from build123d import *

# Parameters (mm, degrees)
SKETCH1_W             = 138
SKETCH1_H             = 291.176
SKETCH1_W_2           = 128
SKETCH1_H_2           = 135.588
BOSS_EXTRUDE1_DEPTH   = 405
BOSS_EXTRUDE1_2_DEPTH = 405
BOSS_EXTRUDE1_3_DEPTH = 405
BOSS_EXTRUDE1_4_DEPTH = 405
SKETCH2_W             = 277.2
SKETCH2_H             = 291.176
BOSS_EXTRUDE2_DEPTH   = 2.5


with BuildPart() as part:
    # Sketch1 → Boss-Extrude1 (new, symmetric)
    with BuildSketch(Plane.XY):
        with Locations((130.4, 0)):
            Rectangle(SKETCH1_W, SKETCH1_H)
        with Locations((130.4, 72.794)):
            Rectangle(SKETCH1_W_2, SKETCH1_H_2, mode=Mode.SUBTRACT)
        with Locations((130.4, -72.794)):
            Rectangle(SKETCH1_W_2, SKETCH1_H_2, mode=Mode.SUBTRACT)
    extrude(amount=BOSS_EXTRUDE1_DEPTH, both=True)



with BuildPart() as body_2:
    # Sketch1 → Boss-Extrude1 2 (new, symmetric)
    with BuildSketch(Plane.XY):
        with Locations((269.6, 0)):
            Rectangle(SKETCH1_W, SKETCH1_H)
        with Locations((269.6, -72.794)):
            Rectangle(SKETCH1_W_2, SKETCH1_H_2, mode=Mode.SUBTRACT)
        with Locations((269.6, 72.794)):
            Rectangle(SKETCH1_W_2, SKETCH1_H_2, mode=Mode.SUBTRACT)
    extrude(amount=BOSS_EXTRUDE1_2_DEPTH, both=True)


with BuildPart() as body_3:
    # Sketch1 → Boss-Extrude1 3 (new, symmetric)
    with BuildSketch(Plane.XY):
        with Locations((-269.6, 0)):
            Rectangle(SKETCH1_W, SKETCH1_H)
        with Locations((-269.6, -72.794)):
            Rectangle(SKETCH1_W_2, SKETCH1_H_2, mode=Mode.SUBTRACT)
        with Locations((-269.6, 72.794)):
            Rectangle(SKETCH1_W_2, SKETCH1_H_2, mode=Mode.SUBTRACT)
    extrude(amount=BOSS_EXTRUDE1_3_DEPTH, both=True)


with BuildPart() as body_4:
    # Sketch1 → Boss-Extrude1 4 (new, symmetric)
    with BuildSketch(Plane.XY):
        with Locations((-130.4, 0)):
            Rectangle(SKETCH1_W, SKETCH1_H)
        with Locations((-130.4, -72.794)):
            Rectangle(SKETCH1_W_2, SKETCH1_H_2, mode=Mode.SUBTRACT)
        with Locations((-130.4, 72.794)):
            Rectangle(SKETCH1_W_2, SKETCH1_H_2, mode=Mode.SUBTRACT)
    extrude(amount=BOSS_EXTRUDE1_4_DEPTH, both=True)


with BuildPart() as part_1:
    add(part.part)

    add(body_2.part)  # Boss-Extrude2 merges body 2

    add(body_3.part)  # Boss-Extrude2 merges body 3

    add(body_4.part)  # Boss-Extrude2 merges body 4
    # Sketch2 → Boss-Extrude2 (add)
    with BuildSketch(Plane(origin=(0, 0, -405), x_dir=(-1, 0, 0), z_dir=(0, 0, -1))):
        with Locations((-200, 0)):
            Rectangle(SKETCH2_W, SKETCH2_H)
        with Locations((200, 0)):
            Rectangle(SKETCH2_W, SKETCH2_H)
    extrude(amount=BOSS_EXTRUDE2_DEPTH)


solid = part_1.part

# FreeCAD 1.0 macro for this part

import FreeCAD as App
import Part
import Sketcher

V = App.Vector
Q = App.Units.Quantity

doc = App.newDocument("Part")
body = doc.addObject("PartDesign::Body", "Body")

sketch1 = body.newObject("Sketcher::SketchObject", "Sketch")
sketch1.AttachmentSupport = (doc.getObject("XY_Plane"), [""])
sketch1.MapMode = "FlatFace"
sketch1.addGeometry(Part.LineSegment(V(61, 146, 0), V(61, -146, 0)), False)
sketch1.addGeometry(Part.LineSegment(V(61, -146, 0), V(199, -146, 0)), False)
sketch1.addGeometry(Part.LineSegment(V(199, -146, 0), V(199, 146, 0)), False)
sketch1.addGeometry(Part.LineSegment(V(199, 146, 0), V(61, 146, 0)), False)
sketch1.addGeometry(Part.LineSegment(V(194, -141, 0), V(66, -141, 0)), False)
sketch1.addGeometry(Part.LineSegment(V(66, -141, 0), V(66, -5, 0)), False)
sketch1.addGeometry(Part.LineSegment(V(66, -5, 0), V(194, -5, 0)), False)
sketch1.addGeometry(Part.LineSegment(V(194, -5, 0), V(194, -141, 0)), False)
sketch1.addGeometry(Part.LineSegment(V(194, 5, 0), V(66, 5, 0)), False)
sketch1.addGeometry(Part.LineSegment(V(66, 5, 0), V(66, 141, 0)), False)
sketch1.addGeometry(Part.LineSegment(V(66, 141, 0), V(194, 141, 0)), False)
sketch1.addGeometry(Part.LineSegment(V(194, 141, 0), V(194, 5, 0)), False)
sketch1.addConstraint(Sketcher.Constraint("Coincident", 0, 2, 1, 1))
sketch1.addConstraint(Sketcher.Constraint("Coincident", 1, 2, 2, 1))
sketch1.addConstraint(Sketcher.Constraint("Coincident", 2, 2, 3, 1))
sketch1.addConstraint(Sketcher.Constraint("Coincident", 3, 2, 0, 1))
sketch1.addConstraint(Sketcher.Constraint("Coincident", 4, 2, 5, 1))
sketch1.addConstraint(Sketcher.Constraint("Coincident", 5, 2, 6, 1))
sketch1.addConstraint(Sketcher.Constraint("Coincident", 6, 2, 7, 1))
sketch1.addConstraint(Sketcher.Constraint("Coincident", 7, 2, 4, 1))
sketch1.addConstraint(Sketcher.Constraint("Coincident", 8, 2, 9, 1))
sketch1.addConstraint(Sketcher.Constraint("Coincident", 9, 2, 10, 1))
sketch1.addConstraint(Sketcher.Constraint("Coincident", 10, 2, 11, 1))
sketch1.addConstraint(Sketcher.Constraint("Coincident", 11, 2, 8, 1))
sketch1.addConstraint(Sketcher.Constraint("Vertical", 0))
sketch1.addConstraint(Sketcher.Constraint("Horizontal", 1))
sketch1.addConstraint(Sketcher.Constraint("Vertical", 2))
sketch1.addConstraint(Sketcher.Constraint("Horizontal", 3))
sketch1.addConstraint(Sketcher.Constraint("Horizontal", 4))
sketch1.addConstraint(Sketcher.Constraint("Vertical", 5))
sketch1.addConstraint(Sketcher.Constraint("Horizontal", 6))
sketch1.addConstraint(Sketcher.Constraint("Vertical", 7))
sketch1.addConstraint(Sketcher.Constraint("Horizontal", 8))
sketch1.addConstraint(Sketcher.Constraint("Vertical", 9))
sketch1.addConstraint(Sketcher.Constraint("Horizontal", 10))
sketch1.addConstraint(Sketcher.Constraint("Vertical", 11))
sketch1.addConstraint(Sketcher.Constraint("Symmetric", 5, 2, 8, 2, -1))
sketch1.addConstraint(Sketcher.Constraint("Symmetric", 7, 2, 10, 2, -1))
sketch1.addConstraint(Sketcher.Constraint("DistanceX", 1, 1, 1, 2, Q("138 mm")))
sketch1.addConstraint(Sketcher.Constraint("DistanceX", 4, 2, 4, 1, Q("128 mm")))
sketch1.addConstraint(Sketcher.Constraint("DistanceY", 5, 2, -1, 1, Q("5 mm")))
sketch1.addConstraint(Sketcher.Constraint("DistanceX", 0, 2, 4, 2, Q("5 mm")))
sketch1.addConstraint(Sketcher.Constraint("DistanceY", 0, 2, 4, 2, Q("5 mm")))
sketch1.addConstraint(Sketcher.Constraint("DistanceY", 9, 2, 3, 2, Q("5 mm")))
sketch1.addConstraint(Sketcher.Constraint("DistanceX", -1, 1, 0, 2, Q("61.4 mm")))
sketch1.addConstraint(Sketcher.Constraint("DistanceY", 0, 2, 0, 1, Q("291.176 mm")))
pad1 = body.newObject("PartDesign::Pad", "Pad")
pad1.Profile = sketch1
pad1.Length = 810
pad1.Midplane = True
body2 = doc.addObject("PartDesign::Body", "Body001")

sketch2 = body2.newObject("Sketcher::SketchObject", "Sketch001")
sketch2.AttachmentSupport = (doc.getObject("XY_Plane001"), [""])
sketch2.MapMode = "FlatFace"
sketch2.addGeometry(Part.LineSegment(V(201, 146, 0), V(201, -146, 0)), False)
sketch2.addGeometry(Part.LineSegment(V(201, -146, 0), V(339, -146, 0)), False)
sketch2.addGeometry(Part.LineSegment(V(339, -146, 0), V(339, 146, 0)), False)
sketch2.addGeometry(Part.LineSegment(V(339, 146, 0), V(201, 146, 0)), False)
sketch2.addGeometry(Part.LineSegment(V(334, -141, 0), V(206, -141, 0)), False)
sketch2.addGeometry(Part.LineSegment(V(206, -141, 0), V(206, -5, 0)), False)
sketch2.addGeometry(Part.LineSegment(V(206, -5, 0), V(334, -5, 0)), False)
sketch2.addGeometry(Part.LineSegment(V(334, -5, 0), V(334, -141, 0)), False)
sketch2.addGeometry(Part.LineSegment(V(334, 5, 0), V(206, 5, 0)), False)
sketch2.addGeometry(Part.LineSegment(V(206, 5, 0), V(206, 141, 0)), False)
sketch2.addGeometry(Part.LineSegment(V(206, 141, 0), V(334, 141, 0)), False)
sketch2.addGeometry(Part.LineSegment(V(334, 141, 0), V(334, 5, 0)), False)
sketch2.addConstraint(Sketcher.Constraint("Coincident", 0, 2, 1, 1))
sketch2.addConstraint(Sketcher.Constraint("Coincident", 1, 2, 2, 1))
sketch2.addConstraint(Sketcher.Constraint("Coincident", 2, 2, 3, 1))
sketch2.addConstraint(Sketcher.Constraint("Coincident", 3, 2, 0, 1))
sketch2.addConstraint(Sketcher.Constraint("Coincident", 4, 2, 5, 1))
sketch2.addConstraint(Sketcher.Constraint("Coincident", 5, 2, 6, 1))
sketch2.addConstraint(Sketcher.Constraint("Coincident", 6, 2, 7, 1))
sketch2.addConstraint(Sketcher.Constraint("Coincident", 7, 2, 4, 1))
sketch2.addConstraint(Sketcher.Constraint("Coincident", 8, 2, 9, 1))
sketch2.addConstraint(Sketcher.Constraint("Coincident", 9, 2, 10, 1))
sketch2.addConstraint(Sketcher.Constraint("Coincident", 10, 2, 11, 1))
sketch2.addConstraint(Sketcher.Constraint("Coincident", 11, 2, 8, 1))
sketch2.addConstraint(Sketcher.Constraint("Vertical", 0))
sketch2.addConstraint(Sketcher.Constraint("Horizontal", 1))
sketch2.addConstraint(Sketcher.Constraint("Vertical", 2))
sketch2.addConstraint(Sketcher.Constraint("Horizontal", 3))
sketch2.addConstraint(Sketcher.Constraint("Horizontal", 4))
sketch2.addConstraint(Sketcher.Constraint("Vertical", 5))
sketch2.addConstraint(Sketcher.Constraint("Horizontal", 6))
sketch2.addConstraint(Sketcher.Constraint("Vertical", 7))
sketch2.addConstraint(Sketcher.Constraint("Horizontal", 8))
sketch2.addConstraint(Sketcher.Constraint("Vertical", 9))
sketch2.addConstraint(Sketcher.Constraint("Horizontal", 10))
sketch2.addConstraint(Sketcher.Constraint("Vertical", 11))
sketch2.addConstraint(Sketcher.Constraint("Symmetric", 5, 2, 8, 2, -1))
sketch2.addConstraint(Sketcher.Constraint("Symmetric", 7, 2, 10, 2, -1))
sketch2.addConstraint(Sketcher.Constraint("DistanceX", 1, 1, 1, 2, Q("138 mm")))
sketch2.addConstraint(Sketcher.Constraint("DistanceX", 4, 2, 4, 1, Q("128 mm")))
sketch2.addConstraint(Sketcher.Constraint("DistanceY", 5, 2, -1, 1, Q("5 mm")))
sketch2.addConstraint(Sketcher.Constraint("DistanceX", 0, 2, 4, 2, Q("5 mm")))
sketch2.addConstraint(Sketcher.Constraint("DistanceY", 0, 2, 4, 2, Q("5 mm")))
sketch2.addConstraint(Sketcher.Constraint("DistanceY", 9, 2, 3, 2, Q("5 mm")))
sketch2.addConstraint(Sketcher.Constraint("DistanceX", -1, 1, 0, 2, Q("200.6 mm")))
sketch2.addConstraint(Sketcher.Constraint("DistanceY", 0, 2, 0, 1, Q("291.176 mm")))
pad2 = body2.newObject("PartDesign::Pad", "Pad001")
pad2.Profile = sketch2
pad2.Length = 810
pad2.Midplane = True
body3 = doc.addObject("PartDesign::Body", "Body002")

sketch3 = body3.newObject("Sketcher::SketchObject", "Sketch002")
sketch3.AttachmentSupport = (doc.getObject("XY_Plane002"), [""])
sketch3.MapMode = "FlatFace"
sketch3.addGeometry(Part.LineSegment(V(-339, 146, 0), V(-339, -146, 0)), False)
sketch3.addGeometry(Part.LineSegment(V(-339, -146, 0), V(-201, -146, 0)), False)
sketch3.addGeometry(Part.LineSegment(V(-201, -146, 0), V(-201, 146, 0)), False)
sketch3.addGeometry(Part.LineSegment(V(-201, 146, 0), V(-339, 146, 0)), False)
sketch3.addGeometry(Part.LineSegment(V(-206, -141, 0), V(-334, -141, 0)), False)
sketch3.addGeometry(Part.LineSegment(V(-334, -141, 0), V(-334, -5, 0)), False)
sketch3.addGeometry(Part.LineSegment(V(-334, -5, 0), V(-206, -5, 0)), False)
sketch3.addGeometry(Part.LineSegment(V(-206, -5, 0), V(-206, -141, 0)), False)
sketch3.addGeometry(Part.LineSegment(V(-206, 5, 0), V(-334, 5, 0)), False)
sketch3.addGeometry(Part.LineSegment(V(-334, 5, 0), V(-334, 141, 0)), False)
sketch3.addGeometry(Part.LineSegment(V(-334, 141, 0), V(-206, 141, 0)), False)
sketch3.addGeometry(Part.LineSegment(V(-206, 141, 0), V(-206, 5, 0)), False)
sketch3.addConstraint(Sketcher.Constraint("Coincident", 0, 2, 1, 1))
sketch3.addConstraint(Sketcher.Constraint("Coincident", 1, 2, 2, 1))
sketch3.addConstraint(Sketcher.Constraint("Coincident", 2, 2, 3, 1))
sketch3.addConstraint(Sketcher.Constraint("Coincident", 3, 2, 0, 1))
sketch3.addConstraint(Sketcher.Constraint("Coincident", 4, 2, 5, 1))
sketch3.addConstraint(Sketcher.Constraint("Coincident", 5, 2, 6, 1))
sketch3.addConstraint(Sketcher.Constraint("Coincident", 6, 2, 7, 1))
sketch3.addConstraint(Sketcher.Constraint("Coincident", 7, 2, 4, 1))
sketch3.addConstraint(Sketcher.Constraint("Coincident", 8, 2, 9, 1))
sketch3.addConstraint(Sketcher.Constraint("Coincident", 9, 2, 10, 1))
sketch3.addConstraint(Sketcher.Constraint("Coincident", 10, 2, 11, 1))
sketch3.addConstraint(Sketcher.Constraint("Coincident", 11, 2, 8, 1))
sketch3.addConstraint(Sketcher.Constraint("Vertical", 0))
sketch3.addConstraint(Sketcher.Constraint("Horizontal", 1))
sketch3.addConstraint(Sketcher.Constraint("Vertical", 2))
sketch3.addConstraint(Sketcher.Constraint("Horizontal", 3))
sketch3.addConstraint(Sketcher.Constraint("Horizontal", 4))
sketch3.addConstraint(Sketcher.Constraint("Vertical", 5))
sketch3.addConstraint(Sketcher.Constraint("Horizontal", 6))
sketch3.addConstraint(Sketcher.Constraint("Vertical", 7))
sketch3.addConstraint(Sketcher.Constraint("Horizontal", 8))
sketch3.addConstraint(Sketcher.Constraint("Vertical", 9))
sketch3.addConstraint(Sketcher.Constraint("Horizontal", 10))
sketch3.addConstraint(Sketcher.Constraint("Vertical", 11))
sketch3.addConstraint(Sketcher.Constraint("Symmetric", 5, 2, 8, 2, -1))
sketch3.addConstraint(Sketcher.Constraint("Symmetric", 7, 2, 10, 2, -1))
sketch3.addConstraint(Sketcher.Constraint("DistanceX", 1, 1, 1, 2, Q("138 mm")))
sketch3.addConstraint(Sketcher.Constraint("DistanceX", 4, 2, 4, 1, Q("128 mm")))
sketch3.addConstraint(Sketcher.Constraint("DistanceY", 5, 2, -1, 1, Q("5 mm")))
sketch3.addConstraint(Sketcher.Constraint("DistanceX", 0, 2, 4, 2, Q("5 mm")))
sketch3.addConstraint(Sketcher.Constraint("DistanceY", 0, 2, 4, 2, Q("5 mm")))
sketch3.addConstraint(Sketcher.Constraint("DistanceY", 9, 2, 3, 2, Q("5 mm")))
sketch3.addConstraint(Sketcher.Constraint("DistanceX", 0, 2, -1, 1, Q("338.6 mm")))
sketch3.addConstraint(Sketcher.Constraint("DistanceY", 0, 2, 0, 1, Q("291.176 mm")))
pad3 = body3.newObject("PartDesign::Pad", "Pad002")
pad3.Profile = sketch3
pad3.Length = 810
pad3.Midplane = True
body4 = doc.addObject("PartDesign::Body", "Body003")

sketch4 = body4.newObject("Sketcher::SketchObject", "Sketch003")
sketch4.AttachmentSupport = (doc.getObject("XY_Plane003"), [""])
sketch4.MapMode = "FlatFace"
sketch4.addGeometry(Part.LineSegment(V(-199, 146, 0), V(-199, -146, 0)), False)
sketch4.addGeometry(Part.LineSegment(V(-199, -146, 0), V(-61, -146, 0)), False)
sketch4.addGeometry(Part.LineSegment(V(-61, -146, 0), V(-61, 146, 0)), False)
sketch4.addGeometry(Part.LineSegment(V(-61, 146, 0), V(-199, 146, 0)), False)
sketch4.addGeometry(Part.LineSegment(V(-66, -141, 0), V(-194, -141, 0)), False)
sketch4.addGeometry(Part.LineSegment(V(-194, -141, 0), V(-194, -5, 0)), False)
sketch4.addGeometry(Part.LineSegment(V(-194, -5, 0), V(-66, -5, 0)), False)
sketch4.addGeometry(Part.LineSegment(V(-66, -5, 0), V(-66, -141, 0)), False)
sketch4.addGeometry(Part.LineSegment(V(-66, 5, 0), V(-194, 5, 0)), False)
sketch4.addGeometry(Part.LineSegment(V(-194, 5, 0), V(-194, 141, 0)), False)
sketch4.addGeometry(Part.LineSegment(V(-194, 141, 0), V(-66, 141, 0)), False)
sketch4.addGeometry(Part.LineSegment(V(-66, 141, 0), V(-66, 5, 0)), False)
sketch4.addConstraint(Sketcher.Constraint("Coincident", 0, 2, 1, 1))
sketch4.addConstraint(Sketcher.Constraint("Coincident", 1, 2, 2, 1))
sketch4.addConstraint(Sketcher.Constraint("Coincident", 2, 2, 3, 1))
sketch4.addConstraint(Sketcher.Constraint("Coincident", 3, 2, 0, 1))
sketch4.addConstraint(Sketcher.Constraint("Coincident", 4, 2, 5, 1))
sketch4.addConstraint(Sketcher.Constraint("Coincident", 5, 2, 6, 1))
sketch4.addConstraint(Sketcher.Constraint("Coincident", 6, 2, 7, 1))
sketch4.addConstraint(Sketcher.Constraint("Coincident", 7, 2, 4, 1))
sketch4.addConstraint(Sketcher.Constraint("Coincident", 8, 2, 9, 1))
sketch4.addConstraint(Sketcher.Constraint("Coincident", 9, 2, 10, 1))
sketch4.addConstraint(Sketcher.Constraint("Coincident", 10, 2, 11, 1))
sketch4.addConstraint(Sketcher.Constraint("Coincident", 11, 2, 8, 1))
sketch4.addConstraint(Sketcher.Constraint("Vertical", 0))
sketch4.addConstraint(Sketcher.Constraint("Horizontal", 1))
sketch4.addConstraint(Sketcher.Constraint("Vertical", 2))
sketch4.addConstraint(Sketcher.Constraint("Horizontal", 3))
sketch4.addConstraint(Sketcher.Constraint("Horizontal", 4))
sketch4.addConstraint(Sketcher.Constraint("Vertical", 5))
sketch4.addConstraint(Sketcher.Constraint("Horizontal", 6))
sketch4.addConstraint(Sketcher.Constraint("Vertical", 7))
sketch4.addConstraint(Sketcher.Constraint("Horizontal", 8))
sketch4.addConstraint(Sketcher.Constraint("Vertical", 9))
sketch4.addConstraint(Sketcher.Constraint("Horizontal", 10))
sketch4.addConstraint(Sketcher.Constraint("Vertical", 11))
sketch4.addConstraint(Sketcher.Constraint("Symmetric", 5, 2, 8, 2, -1))
sketch4.addConstraint(Sketcher.Constraint("Symmetric", 7, 2, 10, 2, -1))
sketch4.addConstraint(Sketcher.Constraint("DistanceX", 1, 1, 1, 2, Q("138 mm")))
sketch4.addConstraint(Sketcher.Constraint("DistanceX", 4, 2, 4, 1, Q("128 mm")))
sketch4.addConstraint(Sketcher.Constraint("DistanceY", 5, 2, -1, 1, Q("5 mm")))
sketch4.addConstraint(Sketcher.Constraint("DistanceX", 0, 2, 4, 2, Q("5 mm")))
sketch4.addConstraint(Sketcher.Constraint("DistanceY", 0, 2, 4, 2, Q("5 mm")))
sketch4.addConstraint(Sketcher.Constraint("DistanceY", 9, 2, 3, 2, Q("5 mm")))
sketch4.addConstraint(Sketcher.Constraint("DistanceX", 0, 2, -1, 1, Q("199.4 mm")))
sketch4.addConstraint(Sketcher.Constraint("DistanceY", 0, 2, 0, 1, Q("291.176 mm")))
pad4 = body4.newObject("PartDesign::Pad", "Pad003")
pad4.Profile = sketch4
pad4.Length = 810
pad4.Midplane = True
body.AllowCompound = True
doc.recompute()

boolean = body.newObject("PartDesign::Boolean", "Boolean")
boolean.Type = "Fuse"
boolean.addObjects([body2])
doc.recompute()

boolean2 = body.newObject("PartDesign::Boolean", "Boolean001")
boolean2.Type = "Fuse"
boolean2.addObjects([body3])
doc.recompute()

boolean3 = body.newObject("PartDesign::Boolean", "Boolean002")
boolean3.Type = "Fuse"
boolean3.addObjects([body4])

sketch5 = body.newObject("Sketcher::SketchObject", "Sketch004")
sketch5.AttachmentSupport = (doc.getObject("XY_Plane"), [""])
sketch5.MapMode = "FlatFace"
sketch5.AttachmentOffset = App.Placement(V(0, 0, -405), App.Rotation())
sketch5.addGeometry(Part.LineSegment(V(339, 146, 0), V(339, -146, 0)), False)
sketch5.addGeometry(Part.LineSegment(V(339, -146, 0), V(61, -146, 0)), False)
sketch5.addGeometry(Part.LineSegment(V(61, -146, 0), V(61, 146, 0)), False)
sketch5.addGeometry(Part.LineSegment(V(61, 146, 0), V(339, 146, 0)), False)
sketch5.addGeometry(Part.LineSegment(V(-61, 146, 0), V(-61, -146, 0)), False)
sketch5.addGeometry(Part.LineSegment(V(-61, -146, 0), V(-339, -146, 0)), False)
sketch5.addGeometry(Part.LineSegment(V(-339, -146, 0), V(-339, 146, 0)), False)
sketch5.addGeometry(Part.LineSegment(V(-339, 146, 0), V(-61, 146, 0)), False)
sketch5.addConstraint(Sketcher.Constraint("Coincident", 0, 2, 1, 1))
sketch5.addConstraint(Sketcher.Constraint("Coincident", 1, 2, 2, 1))
sketch5.addConstraint(Sketcher.Constraint("Coincident", 2, 2, 3, 1))
sketch5.addConstraint(Sketcher.Constraint("Coincident", 3, 2, 0, 1))
sketch5.addConstraint(Sketcher.Constraint("Coincident", 4, 2, 5, 1))
sketch5.addConstraint(Sketcher.Constraint("Coincident", 5, 2, 6, 1))
sketch5.addConstraint(Sketcher.Constraint("Coincident", 6, 2, 7, 1))
sketch5.addConstraint(Sketcher.Constraint("Coincident", 7, 2, 4, 1))
sketch5.addConstraint(Sketcher.Constraint("Vertical", 0))
sketch5.addConstraint(Sketcher.Constraint("Horizontal", 1))
sketch5.addConstraint(Sketcher.Constraint("Vertical", 2))
sketch5.addConstraint(Sketcher.Constraint("Horizontal", 3))
sketch5.addConstraint(Sketcher.Constraint("Vertical", 4))
sketch5.addConstraint(Sketcher.Constraint("Horizontal", 5))
sketch5.addConstraint(Sketcher.Constraint("Vertical", 6))
sketch5.addConstraint(Sketcher.Constraint("Horizontal", 7))
sketch5.addConstraint(Sketcher.Constraint("Symmetric", 2, 2, 4, 2, -1, 1))
sketch5.addConstraint(Sketcher.Constraint("Symmetric", 0, 2, 6, 2, -1, 1))
sketch5.addConstraint(Sketcher.Constraint("Horizontal", 1, 2, 4, 2))
sketch5.addConstraint(Sketcher.Constraint("DistanceX", 1, 2, 1, 1, Q("277.2 mm")))
sketch5.addConstraint(Sketcher.Constraint("DistanceX", 4, 2, 0, 2, Q("400 mm")))
sketch5.addConstraint(Sketcher.Constraint("DistanceY", 0, 2, 0, 1, Q("291.176 mm")))
pad5 = body.newObject("PartDesign::Pad", "Pad004")
pad5.Profile = sketch5
pad5.Length = 2.5
pad5.Reversed = True

doc.recompute()
